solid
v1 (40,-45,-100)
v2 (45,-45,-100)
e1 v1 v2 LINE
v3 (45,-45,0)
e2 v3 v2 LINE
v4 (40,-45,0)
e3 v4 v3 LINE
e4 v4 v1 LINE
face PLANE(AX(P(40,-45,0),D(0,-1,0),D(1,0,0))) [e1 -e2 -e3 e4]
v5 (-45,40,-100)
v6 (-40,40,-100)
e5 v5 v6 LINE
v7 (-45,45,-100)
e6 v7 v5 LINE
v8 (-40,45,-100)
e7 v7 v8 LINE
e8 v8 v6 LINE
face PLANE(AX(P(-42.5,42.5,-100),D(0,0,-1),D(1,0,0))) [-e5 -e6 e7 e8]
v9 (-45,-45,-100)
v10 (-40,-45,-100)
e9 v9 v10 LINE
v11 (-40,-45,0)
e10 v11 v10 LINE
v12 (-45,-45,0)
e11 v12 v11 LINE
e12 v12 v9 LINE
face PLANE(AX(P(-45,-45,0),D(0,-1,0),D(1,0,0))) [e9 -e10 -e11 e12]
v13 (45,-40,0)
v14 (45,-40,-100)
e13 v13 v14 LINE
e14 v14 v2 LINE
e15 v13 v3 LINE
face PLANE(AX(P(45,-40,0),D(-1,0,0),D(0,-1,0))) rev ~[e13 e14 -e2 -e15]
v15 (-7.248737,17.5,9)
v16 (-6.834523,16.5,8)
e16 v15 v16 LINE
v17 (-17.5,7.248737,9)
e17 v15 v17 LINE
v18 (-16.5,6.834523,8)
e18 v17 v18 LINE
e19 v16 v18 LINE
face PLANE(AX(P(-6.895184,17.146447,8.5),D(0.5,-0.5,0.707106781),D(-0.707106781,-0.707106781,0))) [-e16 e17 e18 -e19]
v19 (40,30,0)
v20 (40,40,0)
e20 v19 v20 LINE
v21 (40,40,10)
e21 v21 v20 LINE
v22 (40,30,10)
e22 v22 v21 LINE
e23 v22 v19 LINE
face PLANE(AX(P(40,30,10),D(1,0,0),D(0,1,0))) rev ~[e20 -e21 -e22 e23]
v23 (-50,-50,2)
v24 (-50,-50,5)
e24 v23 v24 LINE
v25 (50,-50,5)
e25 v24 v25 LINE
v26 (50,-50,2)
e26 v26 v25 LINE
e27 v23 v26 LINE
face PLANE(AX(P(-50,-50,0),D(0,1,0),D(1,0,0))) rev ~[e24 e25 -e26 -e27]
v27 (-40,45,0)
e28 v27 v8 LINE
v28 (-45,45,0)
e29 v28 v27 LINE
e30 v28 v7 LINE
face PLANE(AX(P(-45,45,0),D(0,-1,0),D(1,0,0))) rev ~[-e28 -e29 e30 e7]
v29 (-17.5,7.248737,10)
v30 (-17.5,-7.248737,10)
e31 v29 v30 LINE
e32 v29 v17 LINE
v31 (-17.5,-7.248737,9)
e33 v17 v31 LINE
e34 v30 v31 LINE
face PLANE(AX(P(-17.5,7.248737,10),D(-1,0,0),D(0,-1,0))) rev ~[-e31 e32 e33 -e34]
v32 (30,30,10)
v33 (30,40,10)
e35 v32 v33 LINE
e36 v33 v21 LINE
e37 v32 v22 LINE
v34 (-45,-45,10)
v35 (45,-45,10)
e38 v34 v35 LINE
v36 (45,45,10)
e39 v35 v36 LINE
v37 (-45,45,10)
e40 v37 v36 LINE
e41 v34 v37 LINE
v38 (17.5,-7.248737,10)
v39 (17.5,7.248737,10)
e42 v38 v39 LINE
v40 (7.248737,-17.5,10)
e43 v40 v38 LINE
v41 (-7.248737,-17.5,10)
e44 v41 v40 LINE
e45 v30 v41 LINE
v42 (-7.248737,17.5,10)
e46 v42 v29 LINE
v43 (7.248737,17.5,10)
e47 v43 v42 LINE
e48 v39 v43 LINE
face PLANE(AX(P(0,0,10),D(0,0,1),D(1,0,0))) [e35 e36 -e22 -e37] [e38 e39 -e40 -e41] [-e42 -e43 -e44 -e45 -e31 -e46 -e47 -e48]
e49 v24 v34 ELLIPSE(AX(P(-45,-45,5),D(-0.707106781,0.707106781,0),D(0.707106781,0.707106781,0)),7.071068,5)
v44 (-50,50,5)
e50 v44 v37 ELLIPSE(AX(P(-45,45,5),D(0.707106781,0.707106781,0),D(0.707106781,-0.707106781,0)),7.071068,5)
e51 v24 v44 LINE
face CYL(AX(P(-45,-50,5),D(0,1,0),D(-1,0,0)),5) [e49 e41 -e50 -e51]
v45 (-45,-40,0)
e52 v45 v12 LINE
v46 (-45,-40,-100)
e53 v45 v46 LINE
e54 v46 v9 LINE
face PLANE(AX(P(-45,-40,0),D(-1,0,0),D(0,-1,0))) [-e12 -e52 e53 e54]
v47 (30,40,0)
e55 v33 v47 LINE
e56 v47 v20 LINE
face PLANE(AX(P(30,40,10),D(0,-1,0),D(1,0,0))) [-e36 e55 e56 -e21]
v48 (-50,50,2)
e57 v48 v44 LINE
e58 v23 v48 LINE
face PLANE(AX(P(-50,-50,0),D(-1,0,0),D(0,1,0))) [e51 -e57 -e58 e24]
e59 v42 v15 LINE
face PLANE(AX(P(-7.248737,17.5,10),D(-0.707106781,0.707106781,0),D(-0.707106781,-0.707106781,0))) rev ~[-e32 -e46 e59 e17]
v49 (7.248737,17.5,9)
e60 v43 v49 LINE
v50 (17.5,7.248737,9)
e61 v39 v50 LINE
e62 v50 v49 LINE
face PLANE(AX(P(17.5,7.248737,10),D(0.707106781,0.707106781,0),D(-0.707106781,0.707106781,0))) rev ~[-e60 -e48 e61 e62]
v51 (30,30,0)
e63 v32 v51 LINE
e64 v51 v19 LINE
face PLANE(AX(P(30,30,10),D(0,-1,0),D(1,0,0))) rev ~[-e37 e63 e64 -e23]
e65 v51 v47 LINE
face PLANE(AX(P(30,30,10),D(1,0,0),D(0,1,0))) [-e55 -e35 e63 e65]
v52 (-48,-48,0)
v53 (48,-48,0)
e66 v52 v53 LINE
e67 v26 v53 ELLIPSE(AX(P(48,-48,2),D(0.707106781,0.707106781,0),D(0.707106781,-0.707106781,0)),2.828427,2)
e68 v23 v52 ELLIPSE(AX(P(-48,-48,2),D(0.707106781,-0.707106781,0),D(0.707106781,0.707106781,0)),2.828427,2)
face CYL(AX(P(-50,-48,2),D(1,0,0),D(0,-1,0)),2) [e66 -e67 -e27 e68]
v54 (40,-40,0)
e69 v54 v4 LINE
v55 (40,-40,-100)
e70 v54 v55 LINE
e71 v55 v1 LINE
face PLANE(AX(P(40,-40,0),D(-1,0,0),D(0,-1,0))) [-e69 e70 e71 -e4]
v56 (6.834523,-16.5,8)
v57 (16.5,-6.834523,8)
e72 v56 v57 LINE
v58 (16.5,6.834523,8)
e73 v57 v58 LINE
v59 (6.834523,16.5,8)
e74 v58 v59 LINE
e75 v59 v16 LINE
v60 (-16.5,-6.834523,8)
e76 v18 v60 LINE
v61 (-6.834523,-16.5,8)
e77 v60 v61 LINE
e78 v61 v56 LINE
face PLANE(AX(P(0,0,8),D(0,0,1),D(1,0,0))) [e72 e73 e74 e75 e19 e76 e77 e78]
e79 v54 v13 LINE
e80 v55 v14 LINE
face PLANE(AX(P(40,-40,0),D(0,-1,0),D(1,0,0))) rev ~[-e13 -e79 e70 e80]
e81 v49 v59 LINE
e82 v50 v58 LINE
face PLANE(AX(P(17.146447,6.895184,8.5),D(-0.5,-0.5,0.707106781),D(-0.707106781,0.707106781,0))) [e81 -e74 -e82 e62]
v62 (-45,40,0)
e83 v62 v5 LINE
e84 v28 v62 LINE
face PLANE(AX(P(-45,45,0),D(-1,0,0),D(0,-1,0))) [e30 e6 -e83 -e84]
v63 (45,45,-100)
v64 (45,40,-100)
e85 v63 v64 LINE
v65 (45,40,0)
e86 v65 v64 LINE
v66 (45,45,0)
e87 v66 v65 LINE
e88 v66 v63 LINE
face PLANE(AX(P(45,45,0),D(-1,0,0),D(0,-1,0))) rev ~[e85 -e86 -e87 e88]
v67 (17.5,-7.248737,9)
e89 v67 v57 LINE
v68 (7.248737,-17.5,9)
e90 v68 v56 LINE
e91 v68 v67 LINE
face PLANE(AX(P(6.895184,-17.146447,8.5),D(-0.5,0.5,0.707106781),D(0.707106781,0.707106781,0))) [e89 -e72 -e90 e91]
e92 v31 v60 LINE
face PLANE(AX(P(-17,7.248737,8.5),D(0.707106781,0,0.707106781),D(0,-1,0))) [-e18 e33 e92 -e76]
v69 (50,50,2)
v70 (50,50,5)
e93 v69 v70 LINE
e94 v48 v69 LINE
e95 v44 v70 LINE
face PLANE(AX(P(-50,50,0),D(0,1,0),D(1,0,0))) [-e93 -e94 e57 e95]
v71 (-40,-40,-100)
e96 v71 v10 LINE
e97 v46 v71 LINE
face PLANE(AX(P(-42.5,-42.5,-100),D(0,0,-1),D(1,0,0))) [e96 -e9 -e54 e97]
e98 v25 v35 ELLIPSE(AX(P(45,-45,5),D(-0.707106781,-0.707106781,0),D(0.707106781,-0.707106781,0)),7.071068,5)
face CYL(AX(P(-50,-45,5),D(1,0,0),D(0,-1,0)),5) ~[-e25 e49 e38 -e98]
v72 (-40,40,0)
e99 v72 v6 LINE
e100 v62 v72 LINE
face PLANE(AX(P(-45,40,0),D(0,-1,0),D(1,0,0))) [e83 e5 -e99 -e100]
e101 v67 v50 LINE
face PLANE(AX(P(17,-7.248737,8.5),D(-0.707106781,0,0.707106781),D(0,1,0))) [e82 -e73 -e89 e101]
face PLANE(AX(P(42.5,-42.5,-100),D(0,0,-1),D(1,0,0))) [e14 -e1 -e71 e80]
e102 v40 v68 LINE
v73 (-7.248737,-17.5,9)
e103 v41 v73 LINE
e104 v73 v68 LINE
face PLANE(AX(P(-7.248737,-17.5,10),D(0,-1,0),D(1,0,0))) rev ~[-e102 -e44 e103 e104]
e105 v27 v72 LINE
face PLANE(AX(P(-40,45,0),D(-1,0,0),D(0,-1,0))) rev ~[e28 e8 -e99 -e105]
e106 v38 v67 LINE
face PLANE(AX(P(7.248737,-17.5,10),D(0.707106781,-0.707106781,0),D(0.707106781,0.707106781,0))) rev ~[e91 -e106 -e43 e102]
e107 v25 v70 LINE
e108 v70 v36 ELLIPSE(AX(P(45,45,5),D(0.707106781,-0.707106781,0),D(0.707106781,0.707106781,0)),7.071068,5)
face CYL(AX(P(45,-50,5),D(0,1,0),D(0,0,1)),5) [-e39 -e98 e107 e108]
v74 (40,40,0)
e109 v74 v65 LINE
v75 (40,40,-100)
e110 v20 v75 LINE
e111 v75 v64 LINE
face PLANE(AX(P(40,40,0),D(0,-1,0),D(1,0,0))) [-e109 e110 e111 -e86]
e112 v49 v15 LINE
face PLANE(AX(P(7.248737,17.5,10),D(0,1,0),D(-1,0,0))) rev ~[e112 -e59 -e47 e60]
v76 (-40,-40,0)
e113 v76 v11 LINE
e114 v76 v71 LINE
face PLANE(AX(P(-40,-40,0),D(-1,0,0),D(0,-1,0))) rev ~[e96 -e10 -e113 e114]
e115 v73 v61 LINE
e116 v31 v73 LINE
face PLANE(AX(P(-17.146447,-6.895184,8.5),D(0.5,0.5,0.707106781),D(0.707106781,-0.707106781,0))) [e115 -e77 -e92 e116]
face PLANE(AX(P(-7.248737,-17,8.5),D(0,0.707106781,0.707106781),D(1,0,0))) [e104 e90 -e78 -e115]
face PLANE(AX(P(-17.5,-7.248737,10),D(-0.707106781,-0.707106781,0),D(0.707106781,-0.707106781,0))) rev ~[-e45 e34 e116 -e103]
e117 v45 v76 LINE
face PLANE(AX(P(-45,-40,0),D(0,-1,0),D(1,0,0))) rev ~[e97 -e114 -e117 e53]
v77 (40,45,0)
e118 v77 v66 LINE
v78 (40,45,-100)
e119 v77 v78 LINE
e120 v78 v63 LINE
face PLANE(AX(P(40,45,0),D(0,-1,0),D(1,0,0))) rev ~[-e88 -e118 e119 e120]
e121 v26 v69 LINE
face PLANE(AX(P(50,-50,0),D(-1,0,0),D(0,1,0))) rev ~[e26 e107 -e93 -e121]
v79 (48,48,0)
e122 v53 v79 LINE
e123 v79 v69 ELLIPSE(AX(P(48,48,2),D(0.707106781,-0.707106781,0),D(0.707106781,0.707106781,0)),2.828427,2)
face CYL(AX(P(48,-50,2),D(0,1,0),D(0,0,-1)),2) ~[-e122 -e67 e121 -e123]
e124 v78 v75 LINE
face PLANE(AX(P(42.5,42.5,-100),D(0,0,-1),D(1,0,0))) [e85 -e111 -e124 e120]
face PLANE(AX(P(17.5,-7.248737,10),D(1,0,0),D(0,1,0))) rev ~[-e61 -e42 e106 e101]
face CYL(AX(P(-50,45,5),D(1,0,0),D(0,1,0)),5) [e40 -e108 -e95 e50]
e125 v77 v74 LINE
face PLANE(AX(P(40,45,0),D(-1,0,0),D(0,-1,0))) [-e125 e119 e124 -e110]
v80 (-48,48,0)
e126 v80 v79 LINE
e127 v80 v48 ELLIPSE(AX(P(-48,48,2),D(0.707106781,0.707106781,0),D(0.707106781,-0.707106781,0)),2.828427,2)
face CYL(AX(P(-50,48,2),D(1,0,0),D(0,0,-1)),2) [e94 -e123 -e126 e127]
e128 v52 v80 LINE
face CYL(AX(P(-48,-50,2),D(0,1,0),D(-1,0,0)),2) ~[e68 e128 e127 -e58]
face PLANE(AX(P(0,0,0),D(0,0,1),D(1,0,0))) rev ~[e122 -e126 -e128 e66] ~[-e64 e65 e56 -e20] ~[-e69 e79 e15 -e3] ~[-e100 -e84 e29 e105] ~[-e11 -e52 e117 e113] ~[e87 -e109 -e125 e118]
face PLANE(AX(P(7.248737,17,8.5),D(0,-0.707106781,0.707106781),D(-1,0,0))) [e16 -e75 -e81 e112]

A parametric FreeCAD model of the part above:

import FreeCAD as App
import Part
import Sketcher
from FreeCAD import Vector
Q = App.Units.Quantity


def edges_at(feature, points):
    """Names of the edges that pass closest to the given points."""
    edges = feature.Shape.Edges
    near = lambda p: min(range(len(edges)), key=lambda i: edges[i].distToShape(Part.Vertex(*p))[0])
    return sorted({f"Edge{near(p) + 1}" for p in points})


def add_polygon(sketch, points):
    """Adds a closed chain of lines whose ends are joined by coincident constraints."""
    first, n = sketch.GeometryCount, len(points)
    for a, b in zip(points, points[1:] + points[:1]):
        sketch.addGeometry(Part.LineSegment(App.Vector(*a, 0), App.Vector(*b, 0)), False)
    for i in range(n):
        sketch.addConstraint(Sketcher.Constraint("Coincident", first + i, 2, first + (i + 1) % n, 1))

doc = App.newDocument("Part")
body = doc.addObject("PartDesign::Body", "Body")

# Sketch on XY plane
sketch1 = body.newObject("Sketcher::SketchObject", "Sketch")
sketch1.AttachmentSupport = (doc.getObject("XY_Plane"), [""])
sketch1.MapMode = "FlatFace"
add_polygon(sketch1, [(-50, 50), (-50, -50), (50, -50), (50, 50)])  # lines 0-3
sketch1.addConstraint([
    Sketcher.Constraint("Vertical", 0),
    Sketcher.Constraint("Horizontal", 1),
    Sketcher.Constraint("Vertical", 2),
    Sketcher.Constraint("Horizontal", 3),
    Sketcher.Constraint("Symmetric", 0, 2, 2, 2, -1, 1),
    Sketcher.Constraint("Equal", 3, 0),
    Sketcher.Constraint("DistanceX", 1, 1, 1, 2, Q("100 mm")),
])
pad1 = body.newObject("PartDesign::Pad", "Pad")
pad1.Profile = sketch1
pad1.Length = 10

# Sketch on XY plane
sketch2 = body.newObject("Sketcher::SketchObject", "Sketch001")
sketch2.AttachmentSupport = (doc.getObject("XY_Plane"), [""])
sketch2.MapMode = "FlatFace"
add_polygon(sketch2, [(-45, -45), (-45, -40), (-40, -40), (-40, -45)])  # lines 0-3
add_polygon(sketch2, [(-45, 40), (-45, 45), (-40, 45), (-40, 40)])  # lines 4-7
add_polygon(sketch2, [(40, -45), (40, -40), (45, -40), (45, -45)])  # lines 8-11
add_polygon(sketch2, [(40, 40), (40, 45), (45, 45), (45, 40)])  # lines 12-15
sketch2.addConstraint([
    Sketcher.Constraint("Vertical", 0),
    Sketcher.Constraint("Horizontal", 1),
    Sketcher.Constraint("Vertical", 2),
    Sketcher.Constraint("Horizontal", 3),
    Sketcher.Constraint("Vertical", 4),
    Sketcher.Constraint("Horizontal", 5),
    Sketcher.Constraint("Vertical", 6),
    Sketcher.Constraint("Horizontal", 7),
    Sketcher.Constraint("Vertical", 8),
    Sketcher.Constraint("Horizontal", 9),
    Sketcher.Constraint("Vertical", 10),
    Sketcher.Constraint("Horizontal", 11),
    Sketcher.Constraint("Vertical", 12),
    Sketcher.Constraint("Horizontal", 13),
    Sketcher.Constraint("Vertical", 14),
    Sketcher.Constraint("Horizontal", 15),
    Sketcher.Constraint("Symmetric", 6, 2, 8, 2, -1, 1),
    Sketcher.Constraint("Symmetric", 4, 2, 10, 2, -1, 1),
    Sketcher.Constraint("Symmetric", 2, 2, 12, 2, -1, 1),
    Sketcher.Constraint("Symmetric", 0, 2, 14, 2, -1, 1),
    Sketcher.Constraint("Symmetric", 1, 2, 8, 2, -2),
    Sketcher.Constraint("Symmetric", 3, 2, 10, 2, -2),
    Sketcher.Constraint("Equal", 15, 0),
    Sketcher.Constraint("DistanceX", 1, 1, 1, 2, Q("5 mm")),
    Sketcher.Constraint("DistanceX", 0, 2, -1, 1, Q("45 mm")),
    Sketcher.Constraint("DistanceY", 0, 2, -1, 1, Q("40 mm")),
])
pad2 = body.newObject("PartDesign::Pad", "Pad001")
pad2.Profile = sketch2
pad2.Length = 100
pad2.Reversed = True
doc.recompute()

fillet = body.newObject("PartDesign::Fillet", "Fillet")
fillet.Base = (pad2, edges_at(pad2, [
    (0, 50, 10),
    (-50, 0, 10),
    (0, -50, 10),
    (50, 0, 10),
]))
fillet.Radius = 5
doc.recompute()

fillet2 = body.newObject("PartDesign::Fillet", "Fillet001")
fillet2.Base = (fillet, edges_at(fillet, [
    (0, -50, 0),
    (50, 0, 0),
    (0, 50, 0),
    (-50, 0, 0),
]))
fillet2.Radius = 2

# Sketch on XY plane
sketch3 = body.newObject("Sketcher::SketchObject", "Sketch002")
sketch3.AttachmentSupport = (doc.getObject("XY_Plane"), [""])
sketch3.MapMode = "FlatFace"
sketch3.AttachmentOffset = App.Placement(Vector(0, 0, 10), App.Rotation())
add_polygon(sketch3, [(-7, -18), (7, -18), (18, -7), (18, 7), (7, 18), (-7, 18), (-18, 7), (-18, -7)])  # lines 0-7
sketch3.addConstraint([
    Sketcher.Constraint("Horizontal", 0),
    Sketcher.Constraint("Vertical", 2),
    Sketcher.Constraint("Horizontal", 4),
    Sketcher.Constraint("Vertical", 6),
    Sketcher.Constraint("Symmetric", 0, 2, 4, 2, -1, 1),
    Sketcher.Constraint("Symmetric", 1, 2, 5, 2, -1, 1),
    Sketcher.Constraint("Perpendicular", 1, 3),
    Sketcher.Constraint("Perpendicular", 5, 7),
    Sketcher.Constraint("Horizontal", 2, 2, 5, 2),
    Sketcher.Constraint("Horizontal", 1, 2, 6, 2),
    Sketcher.Constraint("Vertical", 0, 2, 3, 2),
    Sketcher.Constraint("Equal", 4, 2),
    Sketcher.Constraint("DistanceY", 0, 2, 3, 2, Q("35 mm")),
    Sketcher.Constraint("DistanceX", 0, 1, 0, 2, Q("14.497474 mm")),
])
pocket1 = body.newObject("PartDesign::Pocket", "Pocket")
pocket1.Profile = sketch3
pocket1.Length = 2
doc.recompute()

chamfer = body.newObject("PartDesign::Chamfer", "Chamfer")
chamfer.Base = (pocket1, edges_at(pocket1, [
    (0, -17.5, 8),
    (12.374, -12.374, 8),
    (17.5, 0, 8),
    (12.374, 12.374, 8),
    (0, 17.5, 8),
    (-12.374, 12.374, 8),
    (-17.5, 0, 8),
    (-12.374, -12.374, 8),
]))
chamfer.Size = 1

# Sketch on XY plane
sketch4 = body.newObject("Sketcher::SketchObject", "Sketch003")
sketch4.AttachmentSupport = (doc.getObject("XY_Plane"), [""])
sketch4.MapMode = "FlatFace"
sketch4.AttachmentOffset = App.Placement(Vector(0, 0, 10), App.Rotation())
add_polygon(sketch4, [(30, 40), (30, 30), (40, 30), (40, 40)])  # lines 0-3
sketch4.addConstraint([
    Sketcher.Constraint("Vertical", 0),
    Sketcher.Constraint("Horizontal", 1),
    Sketcher.Constraint("Vertical", 2),
    Sketcher.Constraint("Horizontal", 3),
    Sketcher.Constraint("Equal", 3, 0),
    Sketcher.Constraint("DistanceX", 1, 1, 1, 2, Q("10 mm")),
    Sketcher.Constraint("DistanceX", -1, 1, 0, 2, Q("30 mm")),
    Sketcher.Constraint("DistanceY", -1, 1, 0, 2, Q("30 mm")),
])
pocket2 = body.newObject("PartDesign::Pocket", "Pocket001")
pocket2.Profile = sketch4
pocket2.Type = "ThroughAll"

doc.recompute()
